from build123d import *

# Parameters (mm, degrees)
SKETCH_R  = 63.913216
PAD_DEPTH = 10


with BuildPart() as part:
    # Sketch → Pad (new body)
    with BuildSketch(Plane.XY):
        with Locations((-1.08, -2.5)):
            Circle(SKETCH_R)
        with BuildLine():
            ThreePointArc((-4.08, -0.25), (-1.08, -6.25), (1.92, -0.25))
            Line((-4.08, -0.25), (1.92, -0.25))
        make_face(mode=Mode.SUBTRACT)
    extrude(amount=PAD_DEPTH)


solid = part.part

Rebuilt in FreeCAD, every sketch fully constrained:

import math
import FreeCAD as App
import Part
import Sketcher

V = App.Vector

doc = App.newDocument("Part")
body = doc.addObject("PartDesign::Body", "Body")

sketch1 = doc.addObject("Sketcher::SketchObject", "Sketch")
body.addObject(sketch1)
sketch1.AttachmentSupport = (doc.XY_Plane, [""])
sketch1.MapMode = "FlatFace"
sketch1.addGeometry([
    Part.Circle(V(-1.1, -2.5, 0), V(0, 0, 1), 63.9),
    Part.ArcOfCircle(Part.Circle(V(-1.1, -2.5, 0), V(0, 0, 1), 3.8), math.radians(143), math.radians(397)),
    Part.LineSegment(V(-4.1, -0.2, 0), V(1.9, -0.2, 0)),
], False)
sketch1.addConstraint([
    Sketcher.Constraint("Coincident", 1, 1, 2, 1),
    Sketcher.Constraint("Coincident", 2, 2, 1, 2),
    Sketcher.Constraint("Horizontal", 2),
    Sketcher.Constraint("Coincident", 1, 3, 0, 3),
    Sketcher.Constraint("DistanceX", 2, 1, 2, 2, 6.0),
    Sketcher.Constraint("Radius", 1, 3.75),
    Sketcher.Constraint("DistanceY", 0, 3, -1, 1, 2.5),
    Sketcher.Constraint("Diameter", 0, 127.826432),
    Sketcher.Constraint("DistanceX", 0, 3, -1, 1, 1.08),
])
pad1 = doc.addObject("PartDesign::Pad", "Pad")
body.addObject(pad1)
pad1.Profile = sketch1
pad1.Length = 10

doc.recompute()
